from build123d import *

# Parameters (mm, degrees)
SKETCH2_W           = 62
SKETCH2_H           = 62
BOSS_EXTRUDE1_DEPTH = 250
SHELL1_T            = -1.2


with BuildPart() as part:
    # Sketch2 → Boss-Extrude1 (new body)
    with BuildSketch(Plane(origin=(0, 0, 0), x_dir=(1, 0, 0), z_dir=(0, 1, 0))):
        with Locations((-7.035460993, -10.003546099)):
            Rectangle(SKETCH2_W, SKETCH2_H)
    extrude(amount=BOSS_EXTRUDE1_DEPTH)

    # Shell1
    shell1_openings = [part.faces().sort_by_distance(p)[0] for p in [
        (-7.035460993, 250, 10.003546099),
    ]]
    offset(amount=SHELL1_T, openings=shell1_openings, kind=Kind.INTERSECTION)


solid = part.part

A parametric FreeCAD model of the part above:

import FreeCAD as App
import Part
import Sketcher

V = App.Vector


def faces_at(feature, points):
    """Names of the faces that lie closest to the given points."""
    faces = feature.Shape.Faces
    near = lambda p: min(range(len(faces)), key=lambda i: faces[i].distToShape(Part.Vertex(*p))[0])
    return sorted({f"Face{near(p) + 1}" for p in points})

doc = App.newDocument("Part")
params = doc.addObject("Spreadsheet::Sheet", "Params")
for row, (alias, value) in enumerate([
    ("sketch1_width", "62 mm"),
    ("pad1_length", "250 mm"),
    ("thickness_wall", "1.2 mm"),
], start=1):
    params.set(f"A{row}", alias)
    params.set(f"B{row}", "=" + value)
    params.setAlias(f"B{row}", alias)

body = doc.addObject("PartDesign::Body", "Body")

# Sketch on XZ plane
sketch1 = body.newObject("Sketcher::SketchObject", "Sketch")
sketch1.AttachmentSupport = (doc.getObject("XZ_Plane"), [""])
sketch1.MapMode = "FlatFace"
sketch1.addGeometry([
    Part.LineSegment(V(-38.035461, -20.996454, 0), V(-38.035461, 41.003546, 0)),
    Part.LineSegment(V(-38.035461, 41.003546, 0), V(23.964539, 41.003546, 0)),
    Part.LineSegment(V(23.964539, 41.003546, 0), V(23.964539, -20.996454, 0)),
    Part.LineSegment(V(23.964539, -20.996454, 0), V(-38.035461, -20.996454, 0)),
], False)
sketch1.addConstraint([
    Sketcher.Constraint("Coincident", 0, 2, 1, 1),
    Sketcher.Constraint("Coincident", 1, 2, 2, 1),
    Sketcher.Constraint("Coincident", 2, 2, 3, 1),
    Sketcher.Constraint("Coincident", 3, 2, 0, 1),
    Sketcher.Constraint("Vertical", 0),
    Sketcher.Constraint("Horizontal", 1),
    Sketcher.Constraint("Vertical", 2),
    Sketcher.Constraint("Horizontal", 3),
    Sketcher.Constraint("Equal", 3, 0),
    Sketcher.Constraint("DistanceX", 1, 1, 1, 2, 62.0),
    Sketcher.Constraint("DistanceX", 0, 2, -1, 1, 38.035461),
    Sketcher.Constraint("DistanceY", -1, 1, 0, 2, 41.003546),
])
sketch1.setExpression("Constraints[9]", "Params.sketch1_width")
pad1 = body.newObject("PartDesign::Pad", "Pad")
pad1.Profile = sketch1
pad1.setExpression("Length", "Params.pad1_length")
pad1.Reversed = True
doc.recompute()

thickness = body.newObject("PartDesign::Thickness", "Thickness")
thickness.Base = (pad1, faces_at(pad1, [(-7.035, 250, 10.004)]))
thickness.setExpression("Value", "Params.thickness_wall")
thickness.Reversed = True
thickness.Join = "Intersection"

doc.recompute()
